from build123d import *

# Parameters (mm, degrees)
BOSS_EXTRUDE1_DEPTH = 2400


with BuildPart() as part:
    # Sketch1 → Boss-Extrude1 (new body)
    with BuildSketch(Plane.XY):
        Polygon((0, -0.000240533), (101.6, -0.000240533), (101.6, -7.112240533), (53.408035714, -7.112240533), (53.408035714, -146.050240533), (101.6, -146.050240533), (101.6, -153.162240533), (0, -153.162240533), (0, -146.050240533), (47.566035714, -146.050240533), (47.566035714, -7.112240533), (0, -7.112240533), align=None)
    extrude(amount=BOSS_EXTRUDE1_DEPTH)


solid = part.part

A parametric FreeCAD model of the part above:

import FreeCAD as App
import Part
import Sketcher

V = App.Vector
Q = App.Units.Quantity


def add_polygon(sketch, points):
    """Adds a closed chain of lines whose ends are joined by coincident constraints."""
    first, n = sketch.GeometryCount, len(points)
    for a, b in zip(points, points[1:] + points[:1]):
        sketch.addGeometry(Part.LineSegment(App.Vector(*a, 0), App.Vector(*b, 0)), False)
    for i in range(n):
        sketch.addConstraint(Sketcher.Constraint("Coincident", first + i, 2, first + (i + 1) % n, 1))

doc = App.newDocument("Part")
body = doc.addObject("PartDesign::Body", "Body")

sketch1 = body.newObject("Sketcher::SketchObject", "Sketch")
sketch1.AttachmentSupport = (doc.getObject("XY_Plane"), [""])
sketch1.MapMode = "FlatFace"
add_polygon(sketch1, [(102, 0), (0, 0), (0, -7), (48, -7), (48, -146), (0, -146), (0, -153), (102, -153), (102, -146), (53, -146), (53, -7), (102, -7)])
sketch1.addConstraint([
    Sketcher.Constraint("Horizontal", 0),
    Sketcher.Constraint("Vertical", 1),
    Sketcher.Constraint("Horizontal", 2),
    Sketcher.Constraint("Vertical", 3),
    Sketcher.Constraint("Horizontal", 4),
    Sketcher.Constraint("Vertical", 5),
    Sketcher.Constraint("Horizontal", 6),
    Sketcher.Constraint("Vertical", 7),
    Sketcher.Constraint("Horizontal", 8),
    Sketcher.Constraint("Vertical", 9),
    Sketcher.Constraint("Horizontal", 10),
    Sketcher.Constraint("Vertical", 11),
    Sketcher.Constraint("PointOnObject", 0, 2, -2),
    Sketcher.Constraint("PointOnObject", 4, 2, -2),
    Sketcher.Constraint("Horizontal", 4, 2, 7, 2),
    Sketcher.Constraint("Horizontal", 2, 2, 9, 2),
    Sketcher.Constraint("Vertical", 7, 2, 10, 2),
    Sketcher.Constraint("Equal", 1, 5),
    Sketcher.Constraint("DistanceX", 0, 2, 0, 1, Q("4 in")),
    Sketcher.Constraint("DistanceY", 1, 2, 1, 1, Q("0.28 in")),
    Sketcher.Constraint("DistanceY", 3, 2, 3, 1, Q("5.47 in")),
    Sketcher.Constraint("DistanceX", 3, 2, 8, 2, Q("0.23 in")),
    Sketcher.Constraint("DistanceX", 2, 1, 2, 2, Q("47.566036 mm")),
    Sketcher.Constraint("DistanceY", 0, 2, -1, 1, Q("0.000241 mm")),
])
pad1 = body.newObject("PartDesign::Pad", "Pad")
pad1.Profile = sketch1
pad1.Length = 2400

doc.recompute()
